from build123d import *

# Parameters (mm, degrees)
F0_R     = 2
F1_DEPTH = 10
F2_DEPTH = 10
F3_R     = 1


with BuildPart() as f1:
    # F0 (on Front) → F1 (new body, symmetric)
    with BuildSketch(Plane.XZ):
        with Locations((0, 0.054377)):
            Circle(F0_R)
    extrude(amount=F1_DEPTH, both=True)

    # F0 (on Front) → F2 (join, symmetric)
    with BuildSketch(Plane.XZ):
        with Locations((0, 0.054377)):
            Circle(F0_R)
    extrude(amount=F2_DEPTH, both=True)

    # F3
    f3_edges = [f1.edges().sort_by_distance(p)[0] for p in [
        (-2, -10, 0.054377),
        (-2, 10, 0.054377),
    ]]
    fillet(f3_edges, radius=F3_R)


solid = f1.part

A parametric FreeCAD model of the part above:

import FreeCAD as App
import Part
import Sketcher


def edges_at(feature, points):
    """Names of the edges that pass closest to the given points."""
    edges = feature.Shape.Edges
    near = lambda p: min(range(len(edges)), key=lambda i: edges[i].distToShape(Part.Vertex(*p))[0])
    return sorted({f"Edge{near(p) + 1}" for p in points})

doc = App.newDocument("Part")
body = doc.addObject("PartDesign::Body", "Body")

# Sketch on XZ plane
sketch1 = body.newObject("Sketcher::SketchObject", "Sketch")
sketch1.AttachmentSupport = (doc.getObject("XZ_Plane"), [""])
sketch1.MapMode = "FlatFace"
sketch1.addGeometry(Part.Circle(App.Vector(0, 0.1, 0), App.Vector(0, 0, 1), 2), False)
sketch1.addConstraint([
    Sketcher.Constraint("PointOnObject", 0, 3, -2),
    Sketcher.Constraint("Diameter", 0, 4.0),
    Sketcher.Constraint("DistanceY", -1, 1, 0, 3, 0.054377),
])
pad1 = body.newObject("PartDesign::Pad", "Pad")
pad1.Profile = sketch1
pad1.Length = 20
pad1.Midplane = True

# Sketch on XZ plane
sketch2 = body.newObject("Sketcher::SketchObject", "Sketch001")
sketch2.AttachmentSupport = (doc.getObject("XZ_Plane"), [""])
sketch2.MapMode = "FlatFace"
sketch2.addGeometry(Part.Circle(App.Vector(0, 0.1, 0), App.Vector(0, 0, 1), 2), False)
sketch2.addConstraint([
    Sketcher.Constraint("PointOnObject", 0, 3, -2),
    Sketcher.Constraint("Diameter", 0, 4.0),
    Sketcher.Constraint("DistanceY", -1, 1, 0, 3, 0.054377),
])
pad2 = body.newObject("PartDesign::Pad", "Pad001")
pad2.Profile = sketch2
pad2.Length = 20
pad2.Midplane = True
doc.recompute()

fillet = body.newObject("PartDesign::Fillet", "Fillet")
fillet.Base = (pad2, edges_at(pad2, [(-2, -10, 0.054), (-2, 10, 0.054)]))
fillet.Radius = 1

doc.recompute()
